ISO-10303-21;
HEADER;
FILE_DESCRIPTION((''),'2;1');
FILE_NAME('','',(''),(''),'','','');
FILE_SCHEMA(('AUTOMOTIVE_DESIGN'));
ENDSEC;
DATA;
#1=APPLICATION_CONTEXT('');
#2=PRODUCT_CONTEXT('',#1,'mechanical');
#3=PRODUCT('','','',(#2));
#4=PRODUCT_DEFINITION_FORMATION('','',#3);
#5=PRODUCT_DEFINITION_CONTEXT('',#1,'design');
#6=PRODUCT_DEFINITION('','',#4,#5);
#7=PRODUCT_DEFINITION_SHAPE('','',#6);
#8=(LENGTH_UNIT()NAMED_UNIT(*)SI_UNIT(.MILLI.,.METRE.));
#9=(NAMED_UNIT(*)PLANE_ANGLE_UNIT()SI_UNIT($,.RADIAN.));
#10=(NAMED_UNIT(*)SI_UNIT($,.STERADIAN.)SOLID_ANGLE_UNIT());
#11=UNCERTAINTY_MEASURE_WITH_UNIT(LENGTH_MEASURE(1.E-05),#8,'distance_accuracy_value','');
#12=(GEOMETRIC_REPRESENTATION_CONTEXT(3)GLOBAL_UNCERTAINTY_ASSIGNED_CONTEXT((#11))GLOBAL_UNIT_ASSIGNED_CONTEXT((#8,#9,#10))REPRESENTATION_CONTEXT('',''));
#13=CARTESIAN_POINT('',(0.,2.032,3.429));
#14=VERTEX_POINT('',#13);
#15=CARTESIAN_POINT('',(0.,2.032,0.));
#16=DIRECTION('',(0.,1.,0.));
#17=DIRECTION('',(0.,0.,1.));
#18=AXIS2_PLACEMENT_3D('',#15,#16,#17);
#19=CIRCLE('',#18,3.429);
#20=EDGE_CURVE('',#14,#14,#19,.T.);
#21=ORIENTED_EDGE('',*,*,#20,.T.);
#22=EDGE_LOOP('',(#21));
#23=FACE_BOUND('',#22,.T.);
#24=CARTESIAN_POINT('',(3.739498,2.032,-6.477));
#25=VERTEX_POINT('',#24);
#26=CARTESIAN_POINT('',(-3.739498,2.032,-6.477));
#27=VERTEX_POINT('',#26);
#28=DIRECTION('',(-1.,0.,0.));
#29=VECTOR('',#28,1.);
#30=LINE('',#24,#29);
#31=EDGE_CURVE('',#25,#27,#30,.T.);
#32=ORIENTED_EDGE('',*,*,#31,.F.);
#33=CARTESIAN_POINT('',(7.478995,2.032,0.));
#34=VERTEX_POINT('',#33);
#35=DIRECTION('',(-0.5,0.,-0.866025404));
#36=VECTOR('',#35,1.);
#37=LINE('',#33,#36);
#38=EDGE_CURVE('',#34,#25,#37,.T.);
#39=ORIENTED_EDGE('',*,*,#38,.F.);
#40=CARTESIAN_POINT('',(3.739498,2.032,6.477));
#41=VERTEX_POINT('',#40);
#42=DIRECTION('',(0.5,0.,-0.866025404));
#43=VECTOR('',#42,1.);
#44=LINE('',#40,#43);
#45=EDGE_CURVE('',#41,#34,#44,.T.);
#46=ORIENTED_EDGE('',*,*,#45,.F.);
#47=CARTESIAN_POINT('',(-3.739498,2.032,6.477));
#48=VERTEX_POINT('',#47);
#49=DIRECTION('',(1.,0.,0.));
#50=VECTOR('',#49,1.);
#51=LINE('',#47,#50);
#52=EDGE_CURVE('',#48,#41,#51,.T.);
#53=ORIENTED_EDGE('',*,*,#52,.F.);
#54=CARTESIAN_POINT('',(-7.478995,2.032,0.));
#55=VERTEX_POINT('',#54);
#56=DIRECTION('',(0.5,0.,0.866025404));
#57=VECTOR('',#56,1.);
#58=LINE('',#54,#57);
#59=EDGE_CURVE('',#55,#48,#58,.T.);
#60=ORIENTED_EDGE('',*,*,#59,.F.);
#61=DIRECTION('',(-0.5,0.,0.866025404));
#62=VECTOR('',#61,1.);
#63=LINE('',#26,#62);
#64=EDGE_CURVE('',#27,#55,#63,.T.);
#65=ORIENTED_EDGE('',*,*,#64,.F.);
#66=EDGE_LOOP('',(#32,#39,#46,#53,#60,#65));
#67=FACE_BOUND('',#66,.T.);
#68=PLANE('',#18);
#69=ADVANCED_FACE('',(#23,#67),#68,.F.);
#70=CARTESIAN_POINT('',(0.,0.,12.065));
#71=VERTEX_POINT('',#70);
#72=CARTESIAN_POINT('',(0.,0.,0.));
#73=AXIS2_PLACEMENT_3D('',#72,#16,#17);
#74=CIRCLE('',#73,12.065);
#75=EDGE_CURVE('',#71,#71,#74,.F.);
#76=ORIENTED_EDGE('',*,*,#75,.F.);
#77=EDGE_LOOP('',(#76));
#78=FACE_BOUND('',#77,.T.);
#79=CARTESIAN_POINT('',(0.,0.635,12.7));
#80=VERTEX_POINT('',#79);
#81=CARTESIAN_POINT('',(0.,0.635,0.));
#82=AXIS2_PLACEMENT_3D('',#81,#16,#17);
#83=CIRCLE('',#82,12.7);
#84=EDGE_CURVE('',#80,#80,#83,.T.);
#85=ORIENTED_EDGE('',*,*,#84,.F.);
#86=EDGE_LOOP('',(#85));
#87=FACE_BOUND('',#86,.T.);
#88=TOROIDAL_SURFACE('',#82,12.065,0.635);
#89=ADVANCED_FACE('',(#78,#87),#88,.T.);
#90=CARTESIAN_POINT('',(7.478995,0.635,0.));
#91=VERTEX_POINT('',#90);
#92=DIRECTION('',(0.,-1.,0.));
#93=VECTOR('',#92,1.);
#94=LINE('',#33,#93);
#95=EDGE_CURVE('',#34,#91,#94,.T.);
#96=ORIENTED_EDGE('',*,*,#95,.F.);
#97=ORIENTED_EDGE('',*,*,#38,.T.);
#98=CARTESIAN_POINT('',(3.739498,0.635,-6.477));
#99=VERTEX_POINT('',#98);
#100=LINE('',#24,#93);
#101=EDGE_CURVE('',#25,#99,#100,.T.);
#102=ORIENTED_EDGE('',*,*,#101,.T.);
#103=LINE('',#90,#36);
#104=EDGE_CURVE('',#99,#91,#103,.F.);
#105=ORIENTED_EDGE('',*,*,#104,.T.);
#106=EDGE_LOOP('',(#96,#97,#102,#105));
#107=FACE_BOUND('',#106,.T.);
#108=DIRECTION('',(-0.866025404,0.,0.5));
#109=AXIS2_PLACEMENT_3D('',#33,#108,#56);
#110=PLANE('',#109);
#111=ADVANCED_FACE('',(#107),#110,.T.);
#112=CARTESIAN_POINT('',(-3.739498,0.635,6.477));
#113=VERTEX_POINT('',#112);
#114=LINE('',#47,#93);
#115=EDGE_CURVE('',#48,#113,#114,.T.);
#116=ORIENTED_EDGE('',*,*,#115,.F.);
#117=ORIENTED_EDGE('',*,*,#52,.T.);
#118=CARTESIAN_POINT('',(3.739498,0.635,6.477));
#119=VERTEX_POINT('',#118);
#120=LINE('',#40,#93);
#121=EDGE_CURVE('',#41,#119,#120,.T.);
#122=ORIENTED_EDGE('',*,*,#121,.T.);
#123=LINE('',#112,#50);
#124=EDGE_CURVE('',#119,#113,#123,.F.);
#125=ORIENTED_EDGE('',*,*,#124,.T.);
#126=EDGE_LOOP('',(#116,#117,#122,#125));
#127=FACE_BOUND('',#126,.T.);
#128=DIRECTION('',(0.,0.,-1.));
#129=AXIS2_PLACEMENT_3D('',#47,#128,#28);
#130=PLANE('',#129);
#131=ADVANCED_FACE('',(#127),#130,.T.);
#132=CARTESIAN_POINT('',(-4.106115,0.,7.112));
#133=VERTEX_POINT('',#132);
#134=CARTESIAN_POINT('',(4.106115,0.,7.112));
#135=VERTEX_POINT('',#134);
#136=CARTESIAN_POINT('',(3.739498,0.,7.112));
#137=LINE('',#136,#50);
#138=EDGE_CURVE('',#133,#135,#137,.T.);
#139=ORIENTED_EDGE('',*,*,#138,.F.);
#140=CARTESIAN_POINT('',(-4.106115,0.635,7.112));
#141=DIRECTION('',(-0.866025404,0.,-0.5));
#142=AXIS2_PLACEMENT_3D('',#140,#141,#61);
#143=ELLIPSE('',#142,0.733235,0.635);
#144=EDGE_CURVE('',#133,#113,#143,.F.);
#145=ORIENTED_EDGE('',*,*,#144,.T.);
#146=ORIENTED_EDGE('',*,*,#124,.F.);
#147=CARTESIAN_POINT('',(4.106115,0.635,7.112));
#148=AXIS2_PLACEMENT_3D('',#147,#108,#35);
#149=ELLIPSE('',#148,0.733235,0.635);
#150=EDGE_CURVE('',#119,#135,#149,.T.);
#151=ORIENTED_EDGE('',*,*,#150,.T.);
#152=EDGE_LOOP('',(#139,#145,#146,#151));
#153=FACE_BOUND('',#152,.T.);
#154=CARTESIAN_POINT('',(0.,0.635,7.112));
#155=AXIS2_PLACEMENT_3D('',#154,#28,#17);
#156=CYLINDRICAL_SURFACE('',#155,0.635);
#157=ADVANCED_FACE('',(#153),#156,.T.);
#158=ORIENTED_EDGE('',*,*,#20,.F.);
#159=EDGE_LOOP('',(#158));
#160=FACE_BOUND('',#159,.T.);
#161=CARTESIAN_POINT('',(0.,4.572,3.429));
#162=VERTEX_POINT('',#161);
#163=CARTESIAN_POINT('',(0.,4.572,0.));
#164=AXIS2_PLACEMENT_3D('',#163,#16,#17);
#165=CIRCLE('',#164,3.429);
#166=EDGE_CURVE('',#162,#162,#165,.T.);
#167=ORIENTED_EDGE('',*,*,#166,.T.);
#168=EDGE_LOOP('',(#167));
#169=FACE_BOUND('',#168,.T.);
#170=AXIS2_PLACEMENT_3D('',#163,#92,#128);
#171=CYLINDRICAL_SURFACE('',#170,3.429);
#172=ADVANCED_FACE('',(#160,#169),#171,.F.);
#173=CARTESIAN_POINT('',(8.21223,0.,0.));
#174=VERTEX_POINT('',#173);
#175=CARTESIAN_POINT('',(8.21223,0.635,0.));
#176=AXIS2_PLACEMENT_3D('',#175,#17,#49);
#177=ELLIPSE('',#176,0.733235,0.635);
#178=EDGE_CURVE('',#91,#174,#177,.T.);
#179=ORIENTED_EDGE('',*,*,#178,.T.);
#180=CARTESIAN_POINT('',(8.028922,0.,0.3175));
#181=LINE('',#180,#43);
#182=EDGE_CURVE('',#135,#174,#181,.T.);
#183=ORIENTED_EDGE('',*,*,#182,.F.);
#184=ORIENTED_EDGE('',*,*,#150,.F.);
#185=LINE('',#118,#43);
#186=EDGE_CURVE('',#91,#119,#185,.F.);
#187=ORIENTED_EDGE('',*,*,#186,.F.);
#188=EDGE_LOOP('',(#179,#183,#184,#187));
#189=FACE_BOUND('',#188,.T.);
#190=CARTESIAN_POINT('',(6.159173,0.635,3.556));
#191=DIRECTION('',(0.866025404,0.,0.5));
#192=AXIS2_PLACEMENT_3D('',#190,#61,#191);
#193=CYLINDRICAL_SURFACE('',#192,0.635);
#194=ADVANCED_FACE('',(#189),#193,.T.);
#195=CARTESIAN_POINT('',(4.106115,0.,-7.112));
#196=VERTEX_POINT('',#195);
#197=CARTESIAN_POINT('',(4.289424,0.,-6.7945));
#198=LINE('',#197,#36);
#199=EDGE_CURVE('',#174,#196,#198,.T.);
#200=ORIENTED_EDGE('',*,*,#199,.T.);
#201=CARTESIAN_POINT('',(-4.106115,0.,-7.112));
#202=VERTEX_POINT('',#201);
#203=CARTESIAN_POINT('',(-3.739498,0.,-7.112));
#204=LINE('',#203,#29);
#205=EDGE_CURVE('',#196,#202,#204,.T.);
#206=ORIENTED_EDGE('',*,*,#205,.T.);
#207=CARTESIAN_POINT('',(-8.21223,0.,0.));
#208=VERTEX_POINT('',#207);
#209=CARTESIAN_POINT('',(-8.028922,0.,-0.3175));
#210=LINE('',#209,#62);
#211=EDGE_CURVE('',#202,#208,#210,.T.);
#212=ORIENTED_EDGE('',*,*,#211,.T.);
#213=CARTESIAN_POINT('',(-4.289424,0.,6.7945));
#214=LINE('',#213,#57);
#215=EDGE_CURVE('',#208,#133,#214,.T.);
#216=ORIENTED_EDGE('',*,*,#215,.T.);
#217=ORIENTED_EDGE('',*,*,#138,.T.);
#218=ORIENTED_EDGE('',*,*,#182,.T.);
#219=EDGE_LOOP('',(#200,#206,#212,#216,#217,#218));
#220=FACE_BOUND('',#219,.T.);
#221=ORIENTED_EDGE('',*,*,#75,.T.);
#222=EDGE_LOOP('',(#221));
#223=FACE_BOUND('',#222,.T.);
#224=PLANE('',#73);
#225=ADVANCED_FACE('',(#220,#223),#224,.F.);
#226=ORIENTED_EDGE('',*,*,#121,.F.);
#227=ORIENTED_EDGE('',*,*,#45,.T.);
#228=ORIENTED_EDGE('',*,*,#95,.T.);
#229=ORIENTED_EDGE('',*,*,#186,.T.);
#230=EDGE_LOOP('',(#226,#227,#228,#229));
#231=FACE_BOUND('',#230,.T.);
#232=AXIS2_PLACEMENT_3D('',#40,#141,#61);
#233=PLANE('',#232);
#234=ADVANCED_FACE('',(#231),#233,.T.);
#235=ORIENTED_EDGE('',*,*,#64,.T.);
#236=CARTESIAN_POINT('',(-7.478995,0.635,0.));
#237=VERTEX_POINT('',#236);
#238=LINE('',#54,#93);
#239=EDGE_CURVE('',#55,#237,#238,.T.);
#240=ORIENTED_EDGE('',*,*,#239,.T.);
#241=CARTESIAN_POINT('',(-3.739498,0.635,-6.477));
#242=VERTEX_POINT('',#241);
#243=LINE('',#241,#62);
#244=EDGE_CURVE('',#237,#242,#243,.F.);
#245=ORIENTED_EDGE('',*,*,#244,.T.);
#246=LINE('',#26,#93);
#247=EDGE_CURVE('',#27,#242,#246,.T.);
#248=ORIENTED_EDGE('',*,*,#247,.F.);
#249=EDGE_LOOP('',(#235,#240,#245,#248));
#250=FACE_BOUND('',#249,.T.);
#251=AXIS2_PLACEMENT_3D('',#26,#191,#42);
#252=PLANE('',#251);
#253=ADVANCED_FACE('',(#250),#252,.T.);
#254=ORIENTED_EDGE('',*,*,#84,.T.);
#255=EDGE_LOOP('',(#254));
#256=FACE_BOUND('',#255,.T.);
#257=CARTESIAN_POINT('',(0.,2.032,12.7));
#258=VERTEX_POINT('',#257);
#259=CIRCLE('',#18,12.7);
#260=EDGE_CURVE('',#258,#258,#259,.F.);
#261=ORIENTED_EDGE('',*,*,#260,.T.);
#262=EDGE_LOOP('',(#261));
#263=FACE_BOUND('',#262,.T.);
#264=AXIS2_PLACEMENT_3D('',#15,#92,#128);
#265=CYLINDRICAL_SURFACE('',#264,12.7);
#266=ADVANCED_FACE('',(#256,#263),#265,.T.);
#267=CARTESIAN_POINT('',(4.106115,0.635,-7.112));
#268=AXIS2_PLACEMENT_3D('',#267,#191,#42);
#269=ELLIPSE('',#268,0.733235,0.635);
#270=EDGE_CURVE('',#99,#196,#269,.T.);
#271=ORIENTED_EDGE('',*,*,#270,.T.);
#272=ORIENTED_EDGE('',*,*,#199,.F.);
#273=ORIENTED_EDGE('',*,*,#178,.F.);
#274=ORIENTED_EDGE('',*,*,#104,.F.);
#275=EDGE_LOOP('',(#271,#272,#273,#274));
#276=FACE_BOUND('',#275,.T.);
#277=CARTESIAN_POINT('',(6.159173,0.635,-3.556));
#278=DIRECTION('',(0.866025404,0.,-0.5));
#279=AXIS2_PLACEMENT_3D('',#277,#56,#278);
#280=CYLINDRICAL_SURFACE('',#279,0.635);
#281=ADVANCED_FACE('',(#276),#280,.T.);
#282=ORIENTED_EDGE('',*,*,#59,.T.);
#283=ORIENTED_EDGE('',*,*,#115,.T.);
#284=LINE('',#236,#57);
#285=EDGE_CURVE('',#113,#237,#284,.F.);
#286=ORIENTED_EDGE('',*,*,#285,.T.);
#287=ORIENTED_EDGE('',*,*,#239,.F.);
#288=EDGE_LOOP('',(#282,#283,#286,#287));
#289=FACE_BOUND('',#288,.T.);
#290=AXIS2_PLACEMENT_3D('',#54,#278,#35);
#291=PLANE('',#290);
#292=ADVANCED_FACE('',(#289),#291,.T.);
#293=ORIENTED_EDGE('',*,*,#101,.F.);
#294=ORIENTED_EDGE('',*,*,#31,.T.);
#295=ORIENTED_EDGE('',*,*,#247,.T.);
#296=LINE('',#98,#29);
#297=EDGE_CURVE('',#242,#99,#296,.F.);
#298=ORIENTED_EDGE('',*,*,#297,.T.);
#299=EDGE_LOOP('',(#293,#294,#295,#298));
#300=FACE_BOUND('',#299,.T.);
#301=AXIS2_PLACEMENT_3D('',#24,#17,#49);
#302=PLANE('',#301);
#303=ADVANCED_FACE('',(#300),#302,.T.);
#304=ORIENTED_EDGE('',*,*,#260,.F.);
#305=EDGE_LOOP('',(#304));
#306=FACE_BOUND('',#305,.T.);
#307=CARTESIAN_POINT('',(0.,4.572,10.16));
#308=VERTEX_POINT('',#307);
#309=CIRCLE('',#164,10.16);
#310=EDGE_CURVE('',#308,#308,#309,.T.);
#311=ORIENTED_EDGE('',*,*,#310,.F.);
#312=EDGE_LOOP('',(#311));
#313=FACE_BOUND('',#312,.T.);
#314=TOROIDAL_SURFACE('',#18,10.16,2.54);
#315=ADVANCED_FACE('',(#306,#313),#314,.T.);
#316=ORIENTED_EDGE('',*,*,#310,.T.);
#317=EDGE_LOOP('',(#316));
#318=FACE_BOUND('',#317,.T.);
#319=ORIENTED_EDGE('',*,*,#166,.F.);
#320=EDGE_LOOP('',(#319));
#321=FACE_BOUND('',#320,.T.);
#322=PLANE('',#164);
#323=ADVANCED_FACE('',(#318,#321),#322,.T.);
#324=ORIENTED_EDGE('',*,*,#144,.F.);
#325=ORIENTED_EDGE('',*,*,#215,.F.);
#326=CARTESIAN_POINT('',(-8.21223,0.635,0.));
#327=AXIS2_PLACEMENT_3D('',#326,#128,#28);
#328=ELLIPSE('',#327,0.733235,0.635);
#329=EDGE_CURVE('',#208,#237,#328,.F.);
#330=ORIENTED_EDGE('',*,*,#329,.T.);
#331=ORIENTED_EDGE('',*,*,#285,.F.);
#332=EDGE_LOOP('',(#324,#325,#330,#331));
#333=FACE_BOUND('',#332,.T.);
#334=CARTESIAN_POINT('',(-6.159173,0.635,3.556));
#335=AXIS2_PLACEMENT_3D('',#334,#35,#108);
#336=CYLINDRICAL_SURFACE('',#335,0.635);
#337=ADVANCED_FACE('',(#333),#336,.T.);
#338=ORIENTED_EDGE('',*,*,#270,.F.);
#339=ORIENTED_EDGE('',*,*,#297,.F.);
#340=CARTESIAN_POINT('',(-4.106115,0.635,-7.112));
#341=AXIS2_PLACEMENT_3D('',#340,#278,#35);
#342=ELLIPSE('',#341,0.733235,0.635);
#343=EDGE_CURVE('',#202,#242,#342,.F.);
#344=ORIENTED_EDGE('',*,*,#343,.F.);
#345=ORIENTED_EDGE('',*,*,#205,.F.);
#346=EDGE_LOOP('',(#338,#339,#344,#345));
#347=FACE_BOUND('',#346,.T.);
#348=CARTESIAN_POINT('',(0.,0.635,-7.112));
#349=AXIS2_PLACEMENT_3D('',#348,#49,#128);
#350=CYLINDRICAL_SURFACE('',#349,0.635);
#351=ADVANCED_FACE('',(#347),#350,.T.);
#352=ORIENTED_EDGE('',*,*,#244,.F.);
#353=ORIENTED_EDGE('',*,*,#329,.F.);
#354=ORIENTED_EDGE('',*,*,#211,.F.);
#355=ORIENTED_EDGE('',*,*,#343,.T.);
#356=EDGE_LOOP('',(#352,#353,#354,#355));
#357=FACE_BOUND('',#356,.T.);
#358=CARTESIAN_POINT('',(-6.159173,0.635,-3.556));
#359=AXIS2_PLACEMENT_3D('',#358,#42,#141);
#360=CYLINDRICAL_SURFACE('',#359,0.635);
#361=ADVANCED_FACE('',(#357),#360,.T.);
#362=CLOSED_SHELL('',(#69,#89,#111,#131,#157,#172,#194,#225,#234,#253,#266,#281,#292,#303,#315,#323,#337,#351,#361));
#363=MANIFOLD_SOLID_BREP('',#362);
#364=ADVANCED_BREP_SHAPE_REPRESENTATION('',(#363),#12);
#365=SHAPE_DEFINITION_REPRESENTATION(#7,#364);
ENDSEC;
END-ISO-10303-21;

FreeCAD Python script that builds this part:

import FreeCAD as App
import Part
import Sketcher

V = App.Vector
Q = App.Units.Quantity


def edges_at(feature, points):
    """Names of the edges that pass closest to the given points."""
    edges = feature.Shape.Edges
    near = lambda p: min(range(len(edges)), key=lambda i: edges[i].distToShape(Part.Vertex(*p))[0])
    return sorted({f"Edge{near(p) + 1}" for p in points})

doc = App.newDocument("Part")
body = doc.addObject("PartDesign::Body", "Body")

# Sketch on XZ plane
sketch1 = body.newObject("Sketcher::SketchObject", "Sketch")
sketch1.AttachmentSupport = (doc.getObject("XZ_Plane"), [""])
sketch1.MapMode = "FlatFace"
sketch1.addGeometry([
    Part.Circle(V(0, 0, 0), V(0, 0, 1), 13),  # 0
    Part.LineSegment(V(4, -6, 0), V(7, 0, 0)),  # 1
    Part.LineSegment(V(7, 0, 0), V(4, 6, 0)),  # 2
    Part.LineSegment(V(4, 6, 0), V(-4, 6, 0)),  # 3
    Part.LineSegment(V(-4, 6, 0), V(-7, 0, 0)),  # 4
    Part.LineSegment(V(-7, 0, 0), V(-4, -6, 0)),  # 5
    Part.LineSegment(V(-4, -6, 0), V(4, -6, 0)),  # 6
], False)
sketch1.addConstraint([
    Sketcher.Constraint("Coincident", 1, 2, 2, 1),
    Sketcher.Constraint("Coincident", 2, 2, 3, 1),
    Sketcher.Constraint("Coincident", 3, 2, 4, 1),
    Sketcher.Constraint("Coincident", 4, 2, 5, 1),
    Sketcher.Constraint("Coincident", 5, 2, 6, 1),
    Sketcher.Constraint("Coincident", 6, 2, 1, 1),
    Sketcher.Constraint("Horizontal", 3),
    Sketcher.Constraint("Horizontal", 6),
    Sketcher.Constraint("Coincident", 0, 3, -1, 1),
    Sketcher.Constraint("Symmetric", 1, 2, 4, 2, -1, 1),
    Sketcher.Constraint("Symmetric", 2, 2, 5, 2, -1, 1),
    Sketcher.Constraint("PointOnObject", 1, 2, -1),
    Sketcher.Constraint("Parallel", 1, 4),
    Sketcher.Constraint("Vertical", 3, 2, 5, 2),
    Sketcher.Constraint("Diameter", 0, Q("1 in")),
    Sketcher.Constraint("Angle", 1, Q("60 deg")),
    Sketcher.Constraint("DistanceY", 5, 2, 3, 2, Q("0.51 in")),
    Sketcher.Constraint("DistanceX", 3, 2, 3, 1, 7.478995),
])
pad1 = body.newObject("PartDesign::Pad", "Pad")
pad1.Profile = sketch1
pad1.Length = Q("0.08 in")
pad1.Reversed = True

# Sketch on XZ plane
sketch2 = body.newObject("Sketcher::SketchObject", "Sketch001")
sketch2.AttachmentSupport = (doc.getObject("XZ_Plane"), [""])
sketch2.MapMode = "FlatFace"
sketch2.AttachmentOffset = App.Placement(V(0, 0, -0.08 * 25.4), App.Rotation())
sketch2.addGeometry([
    Part.Circle(V(0, 0, 0), V(0, 0, 1), 12.7),
    Part.Circle(V(0, 0, 0), V(0, 0, 1), 3.4),
], False)
sketch2.addConstraint([
    Sketcher.Constraint("Coincident", 0, 3, -1, 1),
    Sketcher.Constraint("Coincident", 1, 3, -1, 1),
    Sketcher.Constraint("Diameter", 0, Q("1 in")),
    Sketcher.Constraint("Diameter", 1, Q("0.27 in")),
])
pad2 = body.newObject("PartDesign::Pad", "Pad001")
pad2.Profile = sketch2
pad2.Length = Q("0.1 in")
pad2.Reversed = True
doc.recompute()

fillet = body.newObject("PartDesign::Fillet", "Fillet")
fillet.Base = (pad2, edges_at(pad2, [(0, 4.572, -12.7)]))
fillet.Radius = Q("0.1 in")
doc.recompute()

fillet2 = body.newObject("PartDesign::Fillet", "Fillet001")
fillet2.Base = (fillet, edges_at(fillet, [
    (0, 0, -6.477),
    (-5.609, 0, -3.239),
    (-5.609, 0, 3.239),
    (0, 0, 6.477),
    (0, 0, -12.7),
    (5.609, 0, 3.239),
    (5.609, 0, -3.239),
]))
fillet2.Radius = Q("0.025 in")

doc.recompute()
